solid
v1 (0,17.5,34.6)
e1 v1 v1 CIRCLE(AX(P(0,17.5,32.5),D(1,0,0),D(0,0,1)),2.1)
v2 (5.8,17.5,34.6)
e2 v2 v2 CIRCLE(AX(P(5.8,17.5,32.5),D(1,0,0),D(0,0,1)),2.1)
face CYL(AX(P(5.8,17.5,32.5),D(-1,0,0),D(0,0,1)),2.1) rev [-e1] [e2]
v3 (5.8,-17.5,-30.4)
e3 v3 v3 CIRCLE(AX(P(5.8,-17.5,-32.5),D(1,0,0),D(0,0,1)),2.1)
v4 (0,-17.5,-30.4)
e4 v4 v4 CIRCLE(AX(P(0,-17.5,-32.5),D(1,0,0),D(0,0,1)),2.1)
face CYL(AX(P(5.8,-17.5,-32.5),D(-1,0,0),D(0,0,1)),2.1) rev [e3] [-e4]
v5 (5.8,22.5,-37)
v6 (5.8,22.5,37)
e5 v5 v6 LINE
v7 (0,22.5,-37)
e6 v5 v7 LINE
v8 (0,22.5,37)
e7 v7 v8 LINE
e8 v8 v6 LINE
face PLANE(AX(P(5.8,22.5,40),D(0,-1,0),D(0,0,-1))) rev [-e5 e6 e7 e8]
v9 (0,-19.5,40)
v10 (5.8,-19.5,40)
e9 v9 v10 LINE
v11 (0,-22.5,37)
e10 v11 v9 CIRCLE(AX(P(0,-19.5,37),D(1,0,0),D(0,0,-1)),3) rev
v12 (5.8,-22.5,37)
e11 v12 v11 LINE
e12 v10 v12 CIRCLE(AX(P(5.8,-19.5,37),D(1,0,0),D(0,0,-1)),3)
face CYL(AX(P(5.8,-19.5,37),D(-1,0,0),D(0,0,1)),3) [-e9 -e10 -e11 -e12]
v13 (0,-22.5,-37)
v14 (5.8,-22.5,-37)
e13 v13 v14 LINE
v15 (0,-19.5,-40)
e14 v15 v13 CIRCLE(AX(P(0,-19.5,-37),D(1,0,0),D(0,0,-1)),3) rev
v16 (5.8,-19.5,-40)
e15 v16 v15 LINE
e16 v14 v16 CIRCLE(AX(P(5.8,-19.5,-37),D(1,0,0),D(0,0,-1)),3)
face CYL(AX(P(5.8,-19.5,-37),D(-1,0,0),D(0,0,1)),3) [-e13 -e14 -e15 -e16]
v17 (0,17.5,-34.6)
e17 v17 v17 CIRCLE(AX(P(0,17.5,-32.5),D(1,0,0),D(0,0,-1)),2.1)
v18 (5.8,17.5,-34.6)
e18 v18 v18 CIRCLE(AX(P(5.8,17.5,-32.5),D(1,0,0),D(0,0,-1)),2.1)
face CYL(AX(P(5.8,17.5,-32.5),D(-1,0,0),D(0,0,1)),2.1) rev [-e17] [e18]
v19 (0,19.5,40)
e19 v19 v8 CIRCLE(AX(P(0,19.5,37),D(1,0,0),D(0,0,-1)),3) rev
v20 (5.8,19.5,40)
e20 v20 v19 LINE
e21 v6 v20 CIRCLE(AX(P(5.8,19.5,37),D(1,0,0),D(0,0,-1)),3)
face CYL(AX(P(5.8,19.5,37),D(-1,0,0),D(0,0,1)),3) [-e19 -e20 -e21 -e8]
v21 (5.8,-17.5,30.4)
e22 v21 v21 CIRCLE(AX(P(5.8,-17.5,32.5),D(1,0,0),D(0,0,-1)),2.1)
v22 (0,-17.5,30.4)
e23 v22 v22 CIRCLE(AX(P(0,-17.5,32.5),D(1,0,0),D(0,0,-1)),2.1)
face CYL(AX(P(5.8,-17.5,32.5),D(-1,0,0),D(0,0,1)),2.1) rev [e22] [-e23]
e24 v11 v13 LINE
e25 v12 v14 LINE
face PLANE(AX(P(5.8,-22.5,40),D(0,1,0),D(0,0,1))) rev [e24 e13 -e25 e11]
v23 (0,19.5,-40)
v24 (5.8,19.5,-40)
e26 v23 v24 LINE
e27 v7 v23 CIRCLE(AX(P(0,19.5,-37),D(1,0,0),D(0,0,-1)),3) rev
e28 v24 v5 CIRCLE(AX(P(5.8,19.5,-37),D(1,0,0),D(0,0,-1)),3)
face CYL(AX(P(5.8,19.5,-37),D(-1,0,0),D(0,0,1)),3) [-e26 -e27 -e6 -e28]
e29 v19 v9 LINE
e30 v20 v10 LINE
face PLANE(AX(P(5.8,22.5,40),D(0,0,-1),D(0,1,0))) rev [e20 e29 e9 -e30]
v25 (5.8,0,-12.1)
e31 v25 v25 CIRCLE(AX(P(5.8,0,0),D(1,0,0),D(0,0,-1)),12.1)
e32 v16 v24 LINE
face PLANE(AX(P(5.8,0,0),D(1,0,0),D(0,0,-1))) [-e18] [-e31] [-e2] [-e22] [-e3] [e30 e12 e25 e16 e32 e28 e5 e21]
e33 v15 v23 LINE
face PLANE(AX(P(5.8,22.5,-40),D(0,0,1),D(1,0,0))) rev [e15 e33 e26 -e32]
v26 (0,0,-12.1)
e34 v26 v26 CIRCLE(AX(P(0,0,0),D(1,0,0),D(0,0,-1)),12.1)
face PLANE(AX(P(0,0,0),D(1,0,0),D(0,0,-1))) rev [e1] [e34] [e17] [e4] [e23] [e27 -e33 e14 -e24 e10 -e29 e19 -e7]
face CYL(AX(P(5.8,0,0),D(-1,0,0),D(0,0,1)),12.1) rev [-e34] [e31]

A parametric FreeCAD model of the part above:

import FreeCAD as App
import Part
import Sketcher
from FreeCAD import Vector


def edges_at(feature, points):
    """Names of the edges that pass closest to the given points."""
    edges = feature.Shape.Edges
    near = lambda p: min(range(len(edges)), key=lambda i: edges[i].distToShape(Part.Vertex(*p))[0])
    return sorted({f"Edge{near(p) + 1}" for p in points})

doc = App.newDocument("Part")
params = doc.addObject("Spreadsheet::Sheet", "Params")
for row, (alias, value) in enumerate([
    ("sketch1_diameter", "4.2 mm"),
    ("sketch1_diameter2", "24.2 mm"),
    ("sketch1_width", "45 mm"),
    ("sketch1_height", "80 mm"),
    ("pad1_length", "5.8 mm"),
    ("fillet_radius", "3 mm"),
], start=1):
    params.set(f"A{row}", alias)
    params.set(f"B{row}", "=" + value)
    params.setAlias(f"B{row}", alias)

body = doc.addObject("PartDesign::Body", "Body")

# Sketch on YZ plane
sketch1 = body.newObject("Sketcher::SketchObject", "Sketch")
sketch1.AttachmentSupport = (doc.getObject("YZ_Plane"), [""])
sketch1.MapMode = "FlatFace"
sketch1.addGeometry([
    Part.LineSegment(Vector(22.5, 40, 0), Vector(-22.5, 40, 0)),  # 0
    Part.LineSegment(Vector(-22.5, 40, 0), Vector(-22.5, -40, 0)),  # 1
    Part.LineSegment(Vector(-22.5, -40, 0), Vector(22.5, -40, 0)),  # 2
    Part.LineSegment(Vector(22.5, -40, 0), Vector(22.5, 40, 0)),  # 3
    Part.Circle(Vector(-17.5, 32.5, 0), Vector(0, 0, 1), 2.1),  # 4
    Part.Circle(Vector(-17.5, -32.5, 0), Vector(0, 0, 1), 2.1),  # 5
    Part.Circle(Vector(17.5, 32.5, 0), Vector(0, 0, 1), 2.1),  # 6
    Part.Circle(Vector(0, 0, 0), Vector(0, 0, 1), 12.1),  # 7
    Part.Circle(Vector(17.5, -32.5, 0), Vector(0, 0, 1), 2.1),  # 8
], False)
sketch1.addConstraint([
    Sketcher.Constraint("Coincident", 0, 2, 1, 1),
    Sketcher.Constraint("Coincident", 1, 2, 2, 1),
    Sketcher.Constraint("Coincident", 2, 2, 3, 1),
    Sketcher.Constraint("Coincident", 3, 2, 0, 1),
    Sketcher.Constraint("Horizontal", 0),
    Sketcher.Constraint("Vertical", 1),
    Sketcher.Constraint("Horizontal", 2),
    Sketcher.Constraint("Vertical", 3),
    Sketcher.Constraint("Coincident", 7, 3, -1, 1),
    Sketcher.Constraint("Equal", 4, 5),
    Sketcher.Constraint("Equal", 5, 6),
    Sketcher.Constraint("Equal", 6, 8),
    Sketcher.Constraint("Symmetric", 5, 3, 6, 3, -1, 1),
    Sketcher.Constraint("Symmetric", 4, 3, 8, 3, -1, 1),
    Sketcher.Constraint("Symmetric", 0, 2, 2, 2, -1, 1),
    Sketcher.Constraint("Symmetric", 4, 3, 6, 3, -2),
    Sketcher.Constraint("Diameter", 4, 4.2),
    Sketcher.Constraint("Diameter", 7, 24.2),
    Sketcher.Constraint("DistanceX", 0, 2, 0, 1, 45.0),
    Sketcher.Constraint("DistanceY", 1, 2, 1, 1, 80.0),
    Sketcher.Constraint("DistanceY", 5, 3, 4, 3, 65.0),
    Sketcher.Constraint("DistanceX", 4, 3, 6, 3, 35.0),
])
sketch1.setExpression("Constraints[16]", "Params.sketch1_diameter")
sketch1.setExpression("Constraints[17]", "Params.sketch1_diameter2")
sketch1.setExpression("Constraints[18]", "Params.sketch1_width")
sketch1.setExpression("Constraints[19]", "Params.sketch1_height")
pad1 = body.newObject("PartDesign::Pad", "Pad")
pad1.Profile = sketch1
pad1.setExpression("Length", "Params.pad1_length")
doc.recompute()

fillet = body.newObject("PartDesign::Fillet", "Fillet")
fillet.Base = (pad1, edges_at(pad1, [
    (2.9, -22.5, -40),
    (2.9, -22.5, 40),
    (2.9, 22.5, 40),
    (2.9, 22.5, -40),
]))
fillet.setExpression("Radius", "Params.fillet_radius")

doc.recompute()
